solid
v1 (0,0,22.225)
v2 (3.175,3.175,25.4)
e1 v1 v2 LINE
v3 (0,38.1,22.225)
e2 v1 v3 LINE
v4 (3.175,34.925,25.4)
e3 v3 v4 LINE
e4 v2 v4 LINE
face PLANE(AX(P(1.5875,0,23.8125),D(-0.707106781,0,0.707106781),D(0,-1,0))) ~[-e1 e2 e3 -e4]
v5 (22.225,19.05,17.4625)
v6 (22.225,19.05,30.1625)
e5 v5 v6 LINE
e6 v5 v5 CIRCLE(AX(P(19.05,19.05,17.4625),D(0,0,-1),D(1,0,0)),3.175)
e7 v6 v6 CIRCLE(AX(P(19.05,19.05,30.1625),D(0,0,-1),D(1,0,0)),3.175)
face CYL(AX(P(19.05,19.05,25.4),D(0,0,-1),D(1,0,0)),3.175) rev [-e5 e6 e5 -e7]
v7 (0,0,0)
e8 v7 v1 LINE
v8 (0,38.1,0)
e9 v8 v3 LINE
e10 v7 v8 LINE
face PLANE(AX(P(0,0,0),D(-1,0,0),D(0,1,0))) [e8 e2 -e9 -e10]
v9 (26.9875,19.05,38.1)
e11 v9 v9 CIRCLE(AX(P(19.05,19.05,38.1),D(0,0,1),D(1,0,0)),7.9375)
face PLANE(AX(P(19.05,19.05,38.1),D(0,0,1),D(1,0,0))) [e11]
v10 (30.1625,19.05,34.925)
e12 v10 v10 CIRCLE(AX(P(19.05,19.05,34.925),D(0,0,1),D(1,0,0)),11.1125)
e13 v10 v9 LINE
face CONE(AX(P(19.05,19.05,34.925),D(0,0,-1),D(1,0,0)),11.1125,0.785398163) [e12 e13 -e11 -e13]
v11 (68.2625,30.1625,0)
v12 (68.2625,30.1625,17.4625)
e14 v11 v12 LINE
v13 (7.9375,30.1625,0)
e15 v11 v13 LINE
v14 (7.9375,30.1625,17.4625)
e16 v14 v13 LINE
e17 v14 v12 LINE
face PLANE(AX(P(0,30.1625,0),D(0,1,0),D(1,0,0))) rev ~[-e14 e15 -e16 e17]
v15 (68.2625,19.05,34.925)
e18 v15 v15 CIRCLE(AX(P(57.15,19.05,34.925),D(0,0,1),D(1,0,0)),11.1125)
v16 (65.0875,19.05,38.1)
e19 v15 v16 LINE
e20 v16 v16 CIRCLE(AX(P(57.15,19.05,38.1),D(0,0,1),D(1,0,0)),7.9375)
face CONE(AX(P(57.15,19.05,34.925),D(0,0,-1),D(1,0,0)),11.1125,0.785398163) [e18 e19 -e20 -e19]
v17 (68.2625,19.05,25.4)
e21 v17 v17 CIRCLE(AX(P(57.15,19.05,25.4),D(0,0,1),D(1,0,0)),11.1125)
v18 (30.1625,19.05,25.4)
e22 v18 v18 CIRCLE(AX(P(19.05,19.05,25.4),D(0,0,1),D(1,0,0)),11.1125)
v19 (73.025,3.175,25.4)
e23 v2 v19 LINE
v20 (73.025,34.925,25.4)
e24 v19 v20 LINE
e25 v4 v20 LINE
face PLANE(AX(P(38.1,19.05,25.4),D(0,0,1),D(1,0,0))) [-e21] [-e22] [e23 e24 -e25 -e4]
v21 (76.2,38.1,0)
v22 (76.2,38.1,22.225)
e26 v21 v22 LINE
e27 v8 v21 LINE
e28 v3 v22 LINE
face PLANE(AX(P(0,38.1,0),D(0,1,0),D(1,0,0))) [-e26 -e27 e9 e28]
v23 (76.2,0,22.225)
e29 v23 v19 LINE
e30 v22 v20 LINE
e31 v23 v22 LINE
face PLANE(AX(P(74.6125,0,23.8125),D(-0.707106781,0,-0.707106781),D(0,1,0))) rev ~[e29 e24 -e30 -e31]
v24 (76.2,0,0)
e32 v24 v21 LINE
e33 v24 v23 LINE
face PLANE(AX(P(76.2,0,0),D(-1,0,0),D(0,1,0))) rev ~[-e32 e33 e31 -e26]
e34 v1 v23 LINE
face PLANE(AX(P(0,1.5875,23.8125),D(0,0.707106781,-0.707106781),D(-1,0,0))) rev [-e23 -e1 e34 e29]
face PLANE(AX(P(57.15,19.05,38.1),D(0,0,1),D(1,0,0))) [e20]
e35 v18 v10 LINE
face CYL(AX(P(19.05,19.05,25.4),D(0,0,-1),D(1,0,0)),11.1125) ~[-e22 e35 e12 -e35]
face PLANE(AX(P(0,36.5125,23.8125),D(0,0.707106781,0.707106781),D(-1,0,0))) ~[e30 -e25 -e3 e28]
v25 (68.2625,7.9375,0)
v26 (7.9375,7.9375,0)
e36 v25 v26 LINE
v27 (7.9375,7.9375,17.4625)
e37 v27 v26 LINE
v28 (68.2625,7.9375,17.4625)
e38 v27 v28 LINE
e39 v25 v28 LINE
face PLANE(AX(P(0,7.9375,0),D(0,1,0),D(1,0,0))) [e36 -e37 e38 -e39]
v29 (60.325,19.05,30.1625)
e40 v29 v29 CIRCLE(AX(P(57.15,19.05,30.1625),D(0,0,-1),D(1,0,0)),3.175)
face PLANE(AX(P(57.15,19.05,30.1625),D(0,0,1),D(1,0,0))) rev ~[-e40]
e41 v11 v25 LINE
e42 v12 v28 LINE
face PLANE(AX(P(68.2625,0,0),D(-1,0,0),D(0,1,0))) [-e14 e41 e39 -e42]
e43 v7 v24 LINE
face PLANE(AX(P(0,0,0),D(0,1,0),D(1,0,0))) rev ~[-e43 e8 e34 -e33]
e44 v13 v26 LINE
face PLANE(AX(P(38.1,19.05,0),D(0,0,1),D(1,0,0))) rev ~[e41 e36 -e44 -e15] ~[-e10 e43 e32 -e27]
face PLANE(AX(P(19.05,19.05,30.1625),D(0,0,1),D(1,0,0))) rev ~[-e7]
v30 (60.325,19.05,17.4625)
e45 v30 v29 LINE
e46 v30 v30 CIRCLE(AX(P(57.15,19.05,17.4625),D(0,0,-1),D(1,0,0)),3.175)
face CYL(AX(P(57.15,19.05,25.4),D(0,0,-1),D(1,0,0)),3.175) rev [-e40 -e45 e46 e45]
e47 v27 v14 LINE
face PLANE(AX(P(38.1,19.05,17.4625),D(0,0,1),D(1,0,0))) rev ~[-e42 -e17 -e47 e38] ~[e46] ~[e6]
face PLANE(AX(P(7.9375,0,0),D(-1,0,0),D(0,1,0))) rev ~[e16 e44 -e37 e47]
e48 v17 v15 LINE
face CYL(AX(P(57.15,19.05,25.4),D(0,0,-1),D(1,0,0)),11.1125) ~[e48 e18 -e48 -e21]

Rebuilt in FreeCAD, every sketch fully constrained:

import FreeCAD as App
import Part
import Sketcher

V = App.Vector
Q = App.Units.Quantity


def edges_at(feature, points):
    """Names of the edges that pass closest to the given points."""
    edges = feature.Shape.Edges
    near = lambda p: min(range(len(edges)), key=lambda i: edges[i].distToShape(Part.Vertex(*p))[0])
    return sorted({f"Edge{near(p) + 1}" for p in points})


def faces_at(feature, points):
    """Names of the faces that lie closest to the given points."""
    faces = feature.Shape.Faces
    near = lambda p: min(range(len(faces)), key=lambda i: faces[i].distToShape(Part.Vertex(*p))[0])
    return sorted({f"Face{near(p) + 1}" for p in points})

doc = App.newDocument("Part")
body = doc.addObject("PartDesign::Body", "Body")

# Sketch on XY plane
sketch1 = body.newObject("Sketcher::SketchObject", "Sketch")
sketch1.AttachmentSupport = (doc.getObject("XY_Plane"), [""])
sketch1.MapMode = "FlatFace"
sketch1.addGeometry([
    Part.LineSegment(V(0, 38.1, 0), V(0, 0, 0)),
    Part.LineSegment(V(0, 0, 0), V(76.2, 0, 0)),
    Part.LineSegment(V(76.2, 0, 0), V(76.2, 38.1, 0)),
    Part.LineSegment(V(76.2, 38.1, 0), V(0, 38.1, 0)),
], False)
sketch1.addConstraint([
    Sketcher.Constraint("Coincident", 0, 2, 1, 1),
    Sketcher.Constraint("Coincident", 1, 2, 2, 1),
    Sketcher.Constraint("Coincident", 2, 2, 3, 1),
    Sketcher.Constraint("Coincident", 3, 2, 0, 1),
    Sketcher.Constraint("Vertical", 0),
    Sketcher.Constraint("Horizontal", 1),
    Sketcher.Constraint("Vertical", 2),
    Sketcher.Constraint("Horizontal", 3),
    Sketcher.Constraint("Coincident", 0, 2, -1, 1),
    Sketcher.Constraint("DistanceX", 1, 1, 1, 2, Q("3 in")),
    Sketcher.Constraint("DistanceY", 0, 2, 0, 1, Q("1.5 in")),
])
pad1 = body.newObject("PartDesign::Pad", "Pad")
pad1.Profile = sketch1
pad1.Length = Q("1 in")

# Sketch on XY plane
sketch2 = body.newObject("Sketcher::SketchObject", "Sketch001")
sketch2.AttachmentSupport = (doc.getObject("XY_Plane"), [""])
sketch2.MapMode = "FlatFace"
sketch2.AttachmentOffset = App.Placement(V(0, 0, 1 * 25.4), App.Rotation())
sketch2.addGeometry([
    Part.Circle(V(57.15, 19.05, 0), V(0, 0, 1), 11.1125),
    Part.Circle(V(19.05, 19.05, 0), V(0, 0, 1), 11.1125),
], False)
sketch2.addConstraint([
    Sketcher.Constraint("Equal", 0, 1),
    Sketcher.Constraint("Horizontal", 0, 3, 1, 3),
    Sketcher.Constraint("Diameter", 0, Q("0.875 in")),
    Sketcher.Constraint("DistanceX", 1, 3, 0, 3, Q("1.5 in")),
    Sketcher.Constraint("DistanceX", -1, 1, 0, 3, Q("2.25 in")),
    Sketcher.Constraint("DistanceY", -1, 1, 0, 3, Q("0.75 in")),
])
pad2 = body.newObject("PartDesign::Pad", "Pad001")
pad2.Profile = sketch2
pad2.Length = Q("0.5 in")
doc.recompute()

thickness = body.newObject("PartDesign::Thickness", "Thickness")
thickness.Base = (pad2, faces_at(pad2, [(38.1, 19.05, 0)]))
thickness.Value = Q("0.3125 in")
thickness.Reversed = True
thickness.Join = "Intersection"
doc.recompute()

chamfer = body.newObject("PartDesign::Chamfer", "Chamfer")
chamfer.Base = (thickness, edges_at(thickness, [
    (38.1, 0, 25.4),
    (0, 19.05, 25.4),
    (38.1, 38.1, 25.4),
    (7.938, 19.05, 38.1),
    (46.038, 19.05, 38.1),
    (76.2, 19.05, 25.4),
]))
chamfer.Size = Q("0.125 in")

doc.recompute()
